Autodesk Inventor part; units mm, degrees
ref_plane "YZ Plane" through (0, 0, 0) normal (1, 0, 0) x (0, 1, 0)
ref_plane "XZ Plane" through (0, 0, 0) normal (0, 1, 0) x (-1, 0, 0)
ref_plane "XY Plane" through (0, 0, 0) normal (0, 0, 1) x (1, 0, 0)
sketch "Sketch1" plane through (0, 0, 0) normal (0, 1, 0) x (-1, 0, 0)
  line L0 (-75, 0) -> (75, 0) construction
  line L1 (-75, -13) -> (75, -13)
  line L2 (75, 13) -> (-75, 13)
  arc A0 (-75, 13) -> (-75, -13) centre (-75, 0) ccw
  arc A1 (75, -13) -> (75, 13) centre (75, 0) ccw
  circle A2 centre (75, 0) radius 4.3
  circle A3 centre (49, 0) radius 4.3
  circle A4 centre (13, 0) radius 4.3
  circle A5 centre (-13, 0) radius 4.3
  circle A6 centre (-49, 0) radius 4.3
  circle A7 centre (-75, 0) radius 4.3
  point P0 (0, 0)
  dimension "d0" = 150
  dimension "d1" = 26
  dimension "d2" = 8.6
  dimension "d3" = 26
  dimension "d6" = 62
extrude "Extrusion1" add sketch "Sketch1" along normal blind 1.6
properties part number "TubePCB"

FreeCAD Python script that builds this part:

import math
import FreeCAD as App
import Part
import Sketcher
from FreeCAD import Vector
Q = App.Units.Quantity

doc = App.newDocument("Part")
params = doc.addObject("Spreadsheet::Sheet", "Params")
for row, (alias, value) in enumerate([
    ("sketch1_radius", "13 mm"),
    ("sketch1_diameter", "8.6 mm"),
    ("sketch1_width", "150 mm"),
    ("pad1_length", "1.6 mm"),
], start=1):
    params.set(f"A{row}", alias)
    params.set(f"B{row}", "=" + value)
    params.setAlias(f"B{row}", alias)

body = doc.addObject("PartDesign::Body", "Body")

sketch1 = body.newObject("Sketcher::SketchObject", "Sketch")
sketch1.AttachmentSupport = (doc.getObject("XZ_Plane"), [""])
sketch1.MapMode = "FlatFace"
sketch1.addGeometry([
    Part.ArcOfCircle(Part.Circle(Vector(75, 0, 0), Vector(0, 0, 1), 13), math.radians(-90), math.radians(90)),
    Part.LineSegment(Vector(75, -13, 0), Vector(-75, -13, 0)),
    Part.ArcOfCircle(Part.Circle(Vector(-75, 0, 0), Vector(0, 0, 1), 13), math.radians(90), math.radians(270)),
    Part.LineSegment(Vector(-75, 13, 0), Vector(75, 13, 0)),
    Part.Circle(Vector(75, 0, 0), Vector(0, 0, 1), 4.3),
    Part.Circle(Vector(49, 0, 0), Vector(0, 0, 1), 4.3),
    Part.Circle(Vector(13, 0, 0), Vector(0, 0, 1), 4.3),
    Part.Circle(Vector(-13, 0, 0), Vector(0, 0, 1), 4.3),
    Part.Circle(Vector(-49, 0, 0), Vector(0, 0, 1), 4.3),
    Part.Circle(Vector(-75, 0, 0), Vector(0, 0, 1), 4.3),
], False)
sketch1.addConstraint([
    Sketcher.Constraint("Tangent", 0, 1, 1, 1),
    Sketcher.Constraint("Tangent", 1, 2, 2, 2),
    Sketcher.Constraint("Tangent", 2, 1, 3, 1),
    Sketcher.Constraint("Tangent", 3, 2, 0, 2),
    Sketcher.Constraint("Horizontal", 1),
    Sketcher.Constraint("Horizontal", 3),
    Sketcher.Constraint("Coincident", 4, 3, 0, 3),
    Sketcher.Constraint("Coincident", 9, 3, 2, 3),
    Sketcher.Constraint("Equal", 4, 5),
    Sketcher.Constraint("Equal", 5, 6),
    Sketcher.Constraint("Equal", 6, 7),
    Sketcher.Constraint("Equal", 7, 8),
    Sketcher.Constraint("Equal", 8, 9),
    Sketcher.Constraint("Symmetric", 0, 3, 2, 3, -1, 1),
    Sketcher.Constraint("Symmetric", 6, 3, 7, 3, -1, 1),
    Sketcher.Constraint("Symmetric", 5, 3, 8, 3, -1, 1),
    Sketcher.Constraint("PointOnObject", 5, 3, -1),
    Sketcher.Constraint("PointOnObject", 6, 3, -1),
    Sketcher.Constraint("Radius", 0, Q("13 mm")),
    Sketcher.Constraint("Diameter", 4, Q("8.6 mm")),
    Sketcher.Constraint("DistanceX", 1, 2, 1, 1, Q("150 mm")),
    Sketcher.Constraint("DistanceX", 5, 3, 0, 3, Q("26 mm")),
    Sketcher.Constraint("DistanceX", 6, 3, 0, 3, Q("62 mm")),
])
sketch1.setExpression("Constraints[18]", "Params.sketch1_radius")
sketch1.setExpression("Constraints[19]", "Params.sketch1_diameter")
sketch1.setExpression("Constraints[20]", "Params.sketch1_width")
pad1 = body.newObject("PartDesign::Pad", "Pad")
pad1.Profile = sketch1
pad1.setExpression("Length", "Params.pad1_length")
pad1.Reversed = True

doc.recompute()
